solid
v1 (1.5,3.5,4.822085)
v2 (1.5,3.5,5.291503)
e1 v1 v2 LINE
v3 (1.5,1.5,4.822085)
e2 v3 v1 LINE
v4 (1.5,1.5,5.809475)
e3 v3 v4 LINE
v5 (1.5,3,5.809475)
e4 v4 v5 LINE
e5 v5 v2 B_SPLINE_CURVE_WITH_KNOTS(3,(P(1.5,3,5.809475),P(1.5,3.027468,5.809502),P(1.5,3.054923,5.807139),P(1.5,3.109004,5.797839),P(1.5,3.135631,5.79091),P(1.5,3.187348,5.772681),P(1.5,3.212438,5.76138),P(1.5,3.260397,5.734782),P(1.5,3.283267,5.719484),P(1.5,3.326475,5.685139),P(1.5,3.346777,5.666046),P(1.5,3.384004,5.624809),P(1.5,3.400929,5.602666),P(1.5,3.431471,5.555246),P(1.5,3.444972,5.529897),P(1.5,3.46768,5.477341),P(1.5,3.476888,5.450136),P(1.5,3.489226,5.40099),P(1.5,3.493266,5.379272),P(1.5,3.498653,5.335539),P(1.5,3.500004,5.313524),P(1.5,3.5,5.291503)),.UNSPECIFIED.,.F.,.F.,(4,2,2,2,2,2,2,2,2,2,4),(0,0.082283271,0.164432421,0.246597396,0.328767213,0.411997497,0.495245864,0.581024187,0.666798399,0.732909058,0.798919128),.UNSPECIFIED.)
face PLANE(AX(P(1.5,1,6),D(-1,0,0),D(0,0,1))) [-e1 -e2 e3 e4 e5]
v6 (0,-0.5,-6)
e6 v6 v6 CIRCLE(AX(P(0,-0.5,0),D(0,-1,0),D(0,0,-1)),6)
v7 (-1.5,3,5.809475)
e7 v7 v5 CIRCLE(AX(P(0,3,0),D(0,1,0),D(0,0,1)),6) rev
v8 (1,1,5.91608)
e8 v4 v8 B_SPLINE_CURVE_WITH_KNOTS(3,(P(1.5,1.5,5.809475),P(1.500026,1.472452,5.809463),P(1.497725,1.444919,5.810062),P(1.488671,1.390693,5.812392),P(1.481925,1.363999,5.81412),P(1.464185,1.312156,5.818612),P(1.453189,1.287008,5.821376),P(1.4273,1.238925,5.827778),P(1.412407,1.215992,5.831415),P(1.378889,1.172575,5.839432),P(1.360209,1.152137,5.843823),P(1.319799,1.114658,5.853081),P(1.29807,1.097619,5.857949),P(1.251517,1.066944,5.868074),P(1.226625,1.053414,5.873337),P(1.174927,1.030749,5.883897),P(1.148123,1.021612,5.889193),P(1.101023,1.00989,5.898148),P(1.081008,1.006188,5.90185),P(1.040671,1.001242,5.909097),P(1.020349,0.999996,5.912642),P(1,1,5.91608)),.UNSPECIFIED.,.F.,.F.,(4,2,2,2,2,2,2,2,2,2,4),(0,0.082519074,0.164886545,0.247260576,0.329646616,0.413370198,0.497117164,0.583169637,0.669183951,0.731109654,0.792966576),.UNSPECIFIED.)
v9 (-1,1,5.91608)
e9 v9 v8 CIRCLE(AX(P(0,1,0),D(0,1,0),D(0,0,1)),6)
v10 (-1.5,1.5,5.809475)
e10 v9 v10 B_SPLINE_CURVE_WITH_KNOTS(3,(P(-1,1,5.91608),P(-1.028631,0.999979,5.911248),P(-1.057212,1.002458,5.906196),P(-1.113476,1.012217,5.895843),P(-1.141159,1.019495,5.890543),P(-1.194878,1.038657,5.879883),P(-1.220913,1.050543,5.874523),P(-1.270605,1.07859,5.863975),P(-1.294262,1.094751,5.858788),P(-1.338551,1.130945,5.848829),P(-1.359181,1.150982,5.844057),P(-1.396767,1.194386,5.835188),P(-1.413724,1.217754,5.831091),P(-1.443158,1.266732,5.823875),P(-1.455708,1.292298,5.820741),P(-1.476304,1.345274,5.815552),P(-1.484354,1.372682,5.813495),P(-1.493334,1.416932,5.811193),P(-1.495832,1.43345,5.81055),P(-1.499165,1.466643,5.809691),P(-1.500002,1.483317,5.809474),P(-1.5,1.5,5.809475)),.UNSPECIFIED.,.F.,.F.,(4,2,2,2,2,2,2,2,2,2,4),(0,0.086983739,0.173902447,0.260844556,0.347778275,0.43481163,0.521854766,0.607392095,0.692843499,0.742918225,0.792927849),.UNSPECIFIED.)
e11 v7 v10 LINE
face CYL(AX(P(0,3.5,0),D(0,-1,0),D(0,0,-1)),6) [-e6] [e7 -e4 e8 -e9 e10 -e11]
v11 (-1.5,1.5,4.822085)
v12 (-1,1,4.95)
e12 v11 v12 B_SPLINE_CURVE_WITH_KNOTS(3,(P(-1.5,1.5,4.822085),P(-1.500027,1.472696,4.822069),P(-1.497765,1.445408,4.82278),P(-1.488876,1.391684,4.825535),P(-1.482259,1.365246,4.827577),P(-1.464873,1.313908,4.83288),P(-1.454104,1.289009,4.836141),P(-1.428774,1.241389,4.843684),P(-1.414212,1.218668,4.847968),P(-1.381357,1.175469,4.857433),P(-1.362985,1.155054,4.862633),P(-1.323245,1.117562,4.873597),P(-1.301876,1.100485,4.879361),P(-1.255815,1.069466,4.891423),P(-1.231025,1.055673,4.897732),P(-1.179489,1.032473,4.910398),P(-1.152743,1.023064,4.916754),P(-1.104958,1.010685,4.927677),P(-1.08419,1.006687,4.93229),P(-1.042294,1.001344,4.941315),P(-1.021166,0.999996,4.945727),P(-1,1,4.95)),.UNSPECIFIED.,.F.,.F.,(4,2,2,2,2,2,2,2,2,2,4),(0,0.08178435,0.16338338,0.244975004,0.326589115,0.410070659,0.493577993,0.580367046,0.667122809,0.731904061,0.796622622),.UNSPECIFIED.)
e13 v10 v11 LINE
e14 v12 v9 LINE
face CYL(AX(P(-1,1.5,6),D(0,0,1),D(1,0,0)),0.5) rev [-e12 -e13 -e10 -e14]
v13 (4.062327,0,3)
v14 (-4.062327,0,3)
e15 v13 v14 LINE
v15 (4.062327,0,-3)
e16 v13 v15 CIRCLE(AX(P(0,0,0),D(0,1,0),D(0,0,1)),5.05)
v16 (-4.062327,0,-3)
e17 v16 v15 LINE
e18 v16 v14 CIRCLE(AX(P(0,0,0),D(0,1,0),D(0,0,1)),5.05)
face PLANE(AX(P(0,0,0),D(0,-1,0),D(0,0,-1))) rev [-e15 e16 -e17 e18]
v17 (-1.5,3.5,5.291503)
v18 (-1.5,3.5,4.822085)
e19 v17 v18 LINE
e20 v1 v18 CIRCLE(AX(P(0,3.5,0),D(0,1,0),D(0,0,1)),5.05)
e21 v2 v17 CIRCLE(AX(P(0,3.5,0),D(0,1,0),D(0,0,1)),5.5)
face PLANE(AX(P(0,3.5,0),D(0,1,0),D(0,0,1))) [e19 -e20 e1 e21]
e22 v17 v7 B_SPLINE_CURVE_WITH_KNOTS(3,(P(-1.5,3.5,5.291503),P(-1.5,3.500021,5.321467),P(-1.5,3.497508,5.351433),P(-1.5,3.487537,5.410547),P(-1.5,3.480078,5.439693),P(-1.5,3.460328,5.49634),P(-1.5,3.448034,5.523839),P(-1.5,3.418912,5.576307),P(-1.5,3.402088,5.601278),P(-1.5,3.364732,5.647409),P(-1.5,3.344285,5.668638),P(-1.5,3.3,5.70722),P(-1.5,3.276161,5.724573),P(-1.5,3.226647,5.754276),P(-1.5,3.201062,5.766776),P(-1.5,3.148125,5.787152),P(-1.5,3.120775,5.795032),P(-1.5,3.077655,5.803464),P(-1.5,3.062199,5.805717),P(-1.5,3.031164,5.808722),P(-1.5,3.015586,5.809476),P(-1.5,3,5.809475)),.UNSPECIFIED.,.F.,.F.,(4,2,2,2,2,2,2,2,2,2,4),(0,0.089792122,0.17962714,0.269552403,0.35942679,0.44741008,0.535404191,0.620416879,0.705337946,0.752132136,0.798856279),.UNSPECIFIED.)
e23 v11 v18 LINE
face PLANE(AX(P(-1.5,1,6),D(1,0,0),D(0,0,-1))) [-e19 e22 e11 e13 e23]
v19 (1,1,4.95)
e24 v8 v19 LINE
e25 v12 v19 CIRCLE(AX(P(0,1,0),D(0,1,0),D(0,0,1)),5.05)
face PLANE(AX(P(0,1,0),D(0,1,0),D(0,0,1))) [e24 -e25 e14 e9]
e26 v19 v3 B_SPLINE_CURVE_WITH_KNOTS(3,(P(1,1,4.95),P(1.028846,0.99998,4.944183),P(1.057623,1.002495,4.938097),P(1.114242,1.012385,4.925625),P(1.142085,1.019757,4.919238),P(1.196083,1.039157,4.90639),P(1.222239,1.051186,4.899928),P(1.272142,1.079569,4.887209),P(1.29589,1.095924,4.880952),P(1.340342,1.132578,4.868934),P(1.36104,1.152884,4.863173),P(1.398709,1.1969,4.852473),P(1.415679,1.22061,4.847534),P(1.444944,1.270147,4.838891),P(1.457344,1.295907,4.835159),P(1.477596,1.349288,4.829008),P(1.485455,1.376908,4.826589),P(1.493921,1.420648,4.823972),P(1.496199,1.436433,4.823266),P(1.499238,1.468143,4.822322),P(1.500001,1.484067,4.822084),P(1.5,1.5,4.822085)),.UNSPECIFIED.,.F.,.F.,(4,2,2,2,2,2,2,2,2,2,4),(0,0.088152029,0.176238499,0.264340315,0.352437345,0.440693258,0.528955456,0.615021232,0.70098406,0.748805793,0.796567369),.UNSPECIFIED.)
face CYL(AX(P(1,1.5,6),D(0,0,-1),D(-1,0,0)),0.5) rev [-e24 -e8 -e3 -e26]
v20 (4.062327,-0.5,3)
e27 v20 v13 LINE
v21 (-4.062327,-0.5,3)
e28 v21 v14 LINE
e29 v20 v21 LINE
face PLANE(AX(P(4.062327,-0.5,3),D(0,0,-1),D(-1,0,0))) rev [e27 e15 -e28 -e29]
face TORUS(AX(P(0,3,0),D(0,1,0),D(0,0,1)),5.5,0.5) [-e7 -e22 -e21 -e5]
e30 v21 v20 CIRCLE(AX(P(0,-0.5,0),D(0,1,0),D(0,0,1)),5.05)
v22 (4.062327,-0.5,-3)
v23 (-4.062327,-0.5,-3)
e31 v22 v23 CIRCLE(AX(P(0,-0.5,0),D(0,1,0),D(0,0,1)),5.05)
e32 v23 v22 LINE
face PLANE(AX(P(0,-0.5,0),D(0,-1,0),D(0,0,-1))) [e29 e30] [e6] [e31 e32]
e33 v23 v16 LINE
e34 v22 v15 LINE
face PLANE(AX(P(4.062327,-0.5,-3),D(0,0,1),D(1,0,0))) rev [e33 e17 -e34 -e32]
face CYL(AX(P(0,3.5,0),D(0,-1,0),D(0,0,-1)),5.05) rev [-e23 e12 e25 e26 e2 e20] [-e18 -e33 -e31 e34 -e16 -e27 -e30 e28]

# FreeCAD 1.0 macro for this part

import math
import FreeCAD as App
import Part
import Sketcher
Q = App.Units.Quantity


def edges_at(feature, points):
    """Names of the edges that pass closest to the given points."""
    edges = feature.Shape.Edges
    near = lambda p: min(range(len(edges)), key=lambda i: edges[i].distToShape(Part.Vertex(*p))[0])
    return sorted({f"Edge{near(p) + 1}" for p in points})

doc = App.newDocument("Part")
body = doc.addObject("PartDesign::Body", "Body")

sketch1 = body.newObject("Sketcher::SketchObject", "Sketch")
sketch1.AttachmentSupport = (doc.getObject("XZ_Plane"), [""])
sketch1.MapMode = "FlatFace"
sketch1.addGeometry(Part.Circle(App.Vector(0, 0, 0), App.Vector(0, 0, 1), 6), False)
sketch1.addGeometry(Part.Circle(App.Vector(0, 0, 0), App.Vector(0, 0, 1), 5), False)
sketch1.addConstraint(Sketcher.Constraint("Coincident", 0, 3, -1, 1))
sketch1.addConstraint(Sketcher.Constraint("Coincident", 1, 3, -1, 1))
sketch1.addConstraint(Sketcher.Constraint("Diameter", 0, Q("12 mm")))
sketch1.addConstraint(Sketcher.Constraint("Diameter", 1, Q("10.1 mm")))
pad1 = body.newObject("PartDesign::Pad", "Pad")
pad1.Profile = sketch1
pad1.Length = 3.5
pad1.Reversed = True

sketch2 = body.newObject("Sketcher::SketchObject", "Sketch001")
sketch2.AttachmentSupport = (doc.getObject("XZ_Plane"), [""])
sketch2.MapMode = "FlatFace"
sketch2.addGeometry(Part.Circle(App.Vector(0, 0, 0), App.Vector(0, 0, 1), 6), False)
sketch2.addConstraint(Sketcher.Constraint("Coincident", 0, 3, -1, 1))
sketch2.addConstraint(Sketcher.Constraint("Diameter", 0, Q("12 mm")))
pad2 = body.newObject("PartDesign::Pad", "Pad001")
pad2.Profile = sketch2
pad2.Length = 0.5

sketch3 = body.newObject("Sketcher::SketchObject", "Sketch002")
sketch3.AttachmentSupport = (doc.getObject("XZ_Plane"), [""])
sketch3.MapMode = "FlatFace"
sketch3.AttachmentOffset = App.Placement(App.Vector(0, 0, -3.5), App.Rotation())
sketch3.addGeometry(Part.LineSegment(App.Vector(-1.5, 6, 0), App.Vector(-1.5, 4.8, 0)), False)
sketch3.addGeometry(Part.LineSegment(App.Vector(-1.5, 4.8, 0), App.Vector(1.5, 4.8, 0)), False)
sketch3.addGeometry(Part.LineSegment(App.Vector(1.5, 4.8, 0), App.Vector(1.5, 6, 0)), False)
sketch3.addGeometry(Part.LineSegment(App.Vector(1.5, 6, 0), App.Vector(-1.5, 6, 0)), False)
sketch3.addConstraint(Sketcher.Constraint("Coincident", 0, 2, 1, 1))
sketch3.addConstraint(Sketcher.Constraint("Coincident", 1, 2, 2, 1))
sketch3.addConstraint(Sketcher.Constraint("Coincident", 2, 2, 3, 1))
sketch3.addConstraint(Sketcher.Constraint("Coincident", 3, 2, 0, 1))
sketch3.addConstraint(Sketcher.Constraint("Vertical", 0))
sketch3.addConstraint(Sketcher.Constraint("Horizontal", 1))
sketch3.addConstraint(Sketcher.Constraint("Vertical", 2))
sketch3.addConstraint(Sketcher.Constraint("Horizontal", 3))
sketch3.addConstraint(Sketcher.Constraint("DistanceX", 1, 1, 1, 2, Q("3 mm")))
sketch3.addConstraint(Sketcher.Constraint("DistanceY", -1, 1, 2, 2, Q("6 mm")))
sketch3.addConstraint(Sketcher.Constraint("DistanceX", 0, 2, -1, 1, Q("1.5 mm")))
sketch3.addConstraint(Sketcher.Constraint("DistanceY", 0, 2, 0, 1, Q("1.177915 mm")))
pocket1 = body.newObject("PartDesign::Pocket", "Pocket")
pocket1.Profile = sketch3
pocket1.Length = 2.5
pocket1.Reversed = True

sketch4 = body.newObject("Sketcher::SketchObject", "Sketch003")
sketch4.AttachmentSupport = (doc.getObject("XZ_Plane"), [""])
sketch4.MapMode = "FlatFace"
sketch4.addGeometry(Part.LineSegment(App.Vector(4, 3, 0), App.Vector(-4, 3, 0)), False)
sketch4.addGeometry(Part.ArcOfCircle(Part.Circle(App.Vector(0, 0, 0), App.Vector(0, 0, 1), 5), math.radians(36), math.radians(144)), False)
sketch4.addGeometry(Part.LineSegment(App.Vector(-4, -3, 0), App.Vector(4, -3, 0)), False)
sketch4.addGeometry(Part.ArcOfCircle(Part.Circle(App.Vector(0, 0, 0), App.Vector(0, 0, 1), 5), math.radians(-144), math.radians(-36)), False)
sketch4.addConstraint(Sketcher.Constraint("Coincident", 0, 1, 1, 1))
sketch4.addConstraint(Sketcher.Constraint("Coincident", 1, 2, 0, 2))
sketch4.addConstraint(Sketcher.Constraint("Coincident", 2, 1, 3, 1))
sketch4.addConstraint(Sketcher.Constraint("Coincident", 3, 2, 2, 2))
sketch4.addConstraint(Sketcher.Constraint("Horizontal", 0))
sketch4.addConstraint(Sketcher.Constraint("Horizontal", 2))
sketch4.addConstraint(Sketcher.Constraint("Coincident", 1, 3, -1, 1))
sketch4.addConstraint(Sketcher.Constraint("Coincident", 3, 3, -1, 1))
sketch4.addConstraint(Sketcher.Constraint("Equal", 1, 3))
sketch4.addConstraint(Sketcher.Constraint("Vertical", 1, 2, 2, 1))
sketch4.addConstraint(Sketcher.Constraint("Radius", 1, Q("5.05 mm")))
sketch4.addConstraint(Sketcher.Constraint("DistanceY", -1, 1, 0, 1, Q("3 mm")))
pocket2 = body.newObject("PartDesign::Pocket", "Pocket001")
pocket2.Profile = sketch4
pocket2.Type = "ThroughAll"
pocket2.Reversed = True
doc.recompute()

fillet = body.newObject("PartDesign::Fillet", "Fillet")
fillet.Base = (pocket2, edges_at(pocket2, [(-3.674, 3.5, -4.743), (-1.5, 1, 5.316), (1.5, 1, 5.316)]))
fillet.Radius = 0.5

doc.recompute()
